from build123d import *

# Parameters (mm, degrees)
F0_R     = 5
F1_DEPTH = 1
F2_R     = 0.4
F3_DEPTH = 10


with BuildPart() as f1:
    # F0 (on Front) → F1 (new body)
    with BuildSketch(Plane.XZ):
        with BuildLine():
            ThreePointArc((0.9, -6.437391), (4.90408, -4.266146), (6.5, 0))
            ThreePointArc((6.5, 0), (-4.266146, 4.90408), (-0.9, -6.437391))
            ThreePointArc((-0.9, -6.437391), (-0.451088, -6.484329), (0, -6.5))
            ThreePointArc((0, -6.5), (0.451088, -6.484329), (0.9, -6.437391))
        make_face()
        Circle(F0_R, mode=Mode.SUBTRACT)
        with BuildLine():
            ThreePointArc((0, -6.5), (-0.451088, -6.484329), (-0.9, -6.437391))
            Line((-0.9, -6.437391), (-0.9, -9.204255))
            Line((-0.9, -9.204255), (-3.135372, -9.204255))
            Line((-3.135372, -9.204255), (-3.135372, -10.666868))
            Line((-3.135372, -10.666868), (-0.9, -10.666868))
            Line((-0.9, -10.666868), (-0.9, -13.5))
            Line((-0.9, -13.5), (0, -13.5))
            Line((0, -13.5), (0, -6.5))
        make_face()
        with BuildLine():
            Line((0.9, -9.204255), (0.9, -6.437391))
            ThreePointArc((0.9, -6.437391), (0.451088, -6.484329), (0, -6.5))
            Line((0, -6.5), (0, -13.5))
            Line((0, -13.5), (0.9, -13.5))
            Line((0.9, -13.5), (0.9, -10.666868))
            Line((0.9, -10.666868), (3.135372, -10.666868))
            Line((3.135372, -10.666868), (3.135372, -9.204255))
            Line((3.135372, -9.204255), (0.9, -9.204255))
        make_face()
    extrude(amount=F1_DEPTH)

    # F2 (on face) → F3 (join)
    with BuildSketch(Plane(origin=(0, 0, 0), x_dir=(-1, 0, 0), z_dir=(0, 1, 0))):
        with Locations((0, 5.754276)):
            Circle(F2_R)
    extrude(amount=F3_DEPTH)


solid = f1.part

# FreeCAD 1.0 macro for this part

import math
import FreeCAD as App
import Part
import Sketcher
Q = App.Units.Quantity

doc = App.newDocument("Part")
params = doc.addObject("Spreadsheet::Sheet", "Params")
for row, (alias, value) in enumerate([
    ("sketch1_diameter", "10 mm"),
    ("sketch1_radius", "6.5 mm"),
    ("sketch1_width", "1.8 mm"),
    ("pad1_length", "1 mm"),
    ("sketch2_diameter", "0.8 mm"),
    ("pad2_length", "10 mm"),
], start=1):
    params.set(f"A{row}", alias)
    params.set(f"B{row}", "=" + value)
    params.setAlias(f"B{row}", alias)

body = doc.addObject("PartDesign::Body", "Body")

sketch1 = body.newObject("Sketcher::SketchObject", "Sketch")
sketch1.AttachmentSupport = (doc.getObject("XZ_Plane"), [""])
sketch1.MapMode = "FlatFace"
sketch1.addGeometry([
    Part.ArcOfCircle(Part.Circle(App.Vector(0, 0, 0), App.Vector(0, 0, 1), 6.5), math.radians(-82), math.radians(0)),
    Part.ArcOfCircle(Part.Circle(App.Vector(0, 0, 0), App.Vector(0, 0, 1), 6.5), math.radians(0), math.radians(262)),
    Part.LineSegment(App.Vector(-0.9, -6.4, 0), App.Vector(-0.9, -9.2, 0)),
    Part.LineSegment(App.Vector(-0.9, -9.2, 0), App.Vector(-3.1, -9.2, 0)),
    Part.LineSegment(App.Vector(-3.1, -9.2, 0), App.Vector(-3.1, -10.7, 0)),
    Part.LineSegment(App.Vector(-3.1, -10.7, 0), App.Vector(-0.9, -10.7, 0)),
    Part.LineSegment(App.Vector(-0.9, -10.7, 0), App.Vector(-0.9, -13.5, 0)),
    Part.LineSegment(App.Vector(-0.9, -13.5, 0), App.Vector(0.9, -13.5, 0)),
    Part.LineSegment(App.Vector(0.9, -13.5, 0), App.Vector(0.9, -10.7, 0)),
    Part.LineSegment(App.Vector(0.9, -10.7, 0), App.Vector(3.1, -10.7, 0)),
    Part.LineSegment(App.Vector(3.1, -10.7, 0), App.Vector(3.1, -9.2, 0)),
    Part.LineSegment(App.Vector(3.1, -9.2, 0), App.Vector(0.9, -9.2, 0)),
    Part.LineSegment(App.Vector(0.9, -9.2, 0), App.Vector(0.9, -6.4, 0)),
    Part.Circle(App.Vector(0, 0, 0), App.Vector(0, 0, 1), 5),
], False)
sketch1.addConstraint([
    Sketcher.Constraint("Tangent", 0, 2, 1, 1),
    Sketcher.Constraint("Coincident", 1, 2, 2, 1),
    Sketcher.Constraint("Coincident", 2, 2, 3, 1),
    Sketcher.Constraint("Coincident", 3, 2, 4, 1),
    Sketcher.Constraint("Coincident", 4, 2, 5, 1),
    Sketcher.Constraint("Coincident", 5, 2, 6, 1),
    Sketcher.Constraint("Coincident", 6, 2, 7, 1),
    Sketcher.Constraint("Coincident", 7, 2, 8, 1),
    Sketcher.Constraint("Coincident", 8, 2, 9, 1),
    Sketcher.Constraint("Coincident", 9, 2, 10, 1),
    Sketcher.Constraint("Coincident", 10, 2, 11, 1),
    Sketcher.Constraint("Coincident", 11, 2, 12, 1),
    Sketcher.Constraint("Coincident", 12, 2, 0, 1),
    Sketcher.Constraint("Vertical", 2),
    Sketcher.Constraint("Horizontal", 3),
    Sketcher.Constraint("Vertical", 4),
    Sketcher.Constraint("Horizontal", 5),
    Sketcher.Constraint("Vertical", 6),
    Sketcher.Constraint("Horizontal", 7),
    Sketcher.Constraint("Vertical", 8),
    Sketcher.Constraint("Horizontal", 9),
    Sketcher.Constraint("Vertical", 10),
    Sketcher.Constraint("Horizontal", 11),
    Sketcher.Constraint("Vertical", 12),
    Sketcher.Constraint("Coincident", 0, 3, -1, 1),
    Sketcher.Constraint("Coincident", 13, 3, -1, 1),
    Sketcher.Constraint("Equal", 0, 1),
    Sketcher.Constraint("Symmetric", 5, 2, 8, 2, -2),
    Sketcher.Constraint("Symmetric", 3, 2, 10, 2, -2),
    Sketcher.Constraint("PointOnObject", 0, 2, -1),
    Sketcher.Constraint("Horizontal", 1, 2, 12, 2),
    Sketcher.Constraint("Vertical", 2, 2, 5, 2),
    Sketcher.Constraint("Diameter", 13, Q("10 mm")),
    Sketcher.Constraint("Radius", 0, Q("6.5 mm")),
    Sketcher.Constraint("DistanceX", 7, 1, 7, 2, Q("1.8 mm")),
    Sketcher.Constraint("DistanceY", 6, 2, -1, 1, Q("13.5 mm")),
    Sketcher.Constraint("DistanceX", 3, 2, 3, 1, Q("2.235372 mm")),
    Sketcher.Constraint("DistanceY", 2, 2, 2, 1, Q("2.766864 mm")),
    Sketcher.Constraint("DistanceY", 4, 2, 4, 1, Q("1.462613 mm")),
])
sketch1.setExpression("Constraints[32]", "Params.sketch1_diameter")
sketch1.setExpression("Constraints[33]", "Params.sketch1_radius")
sketch1.setExpression("Constraints[34]", "Params.sketch1_width")
pad1 = body.newObject("PartDesign::Pad", "Pad")
pad1.Profile = sketch1
pad1.setExpression("Length", "Params.pad1_length")

sketch2 = body.newObject("Sketcher::SketchObject", "Sketch001")
sketch2.AttachmentSupport = (doc.getObject("XZ_Plane"), [""])
sketch2.MapMode = "FlatFace"
sketch2.addGeometry(Part.Circle(App.Vector(0, 5.75, 0), App.Vector(0, 0, 1), 0.4), False)
sketch2.addConstraint([
    Sketcher.Constraint("PointOnObject", 0, 3, -2),
    Sketcher.Constraint("Diameter", 0, Q("0.8 mm")),
    Sketcher.Constraint("DistanceY", -1, 1, 0, 3, Q("5.754276 mm")),
])
sketch2.setExpression("Constraints[1]", "Params.sketch2_diameter")
pad2 = body.newObject("PartDesign::Pad", "Pad001")
pad2.Profile = sketch2
pad2.setExpression("Length", "Params.pad2_length")
pad2.Reversed = True

doc.recompute()
